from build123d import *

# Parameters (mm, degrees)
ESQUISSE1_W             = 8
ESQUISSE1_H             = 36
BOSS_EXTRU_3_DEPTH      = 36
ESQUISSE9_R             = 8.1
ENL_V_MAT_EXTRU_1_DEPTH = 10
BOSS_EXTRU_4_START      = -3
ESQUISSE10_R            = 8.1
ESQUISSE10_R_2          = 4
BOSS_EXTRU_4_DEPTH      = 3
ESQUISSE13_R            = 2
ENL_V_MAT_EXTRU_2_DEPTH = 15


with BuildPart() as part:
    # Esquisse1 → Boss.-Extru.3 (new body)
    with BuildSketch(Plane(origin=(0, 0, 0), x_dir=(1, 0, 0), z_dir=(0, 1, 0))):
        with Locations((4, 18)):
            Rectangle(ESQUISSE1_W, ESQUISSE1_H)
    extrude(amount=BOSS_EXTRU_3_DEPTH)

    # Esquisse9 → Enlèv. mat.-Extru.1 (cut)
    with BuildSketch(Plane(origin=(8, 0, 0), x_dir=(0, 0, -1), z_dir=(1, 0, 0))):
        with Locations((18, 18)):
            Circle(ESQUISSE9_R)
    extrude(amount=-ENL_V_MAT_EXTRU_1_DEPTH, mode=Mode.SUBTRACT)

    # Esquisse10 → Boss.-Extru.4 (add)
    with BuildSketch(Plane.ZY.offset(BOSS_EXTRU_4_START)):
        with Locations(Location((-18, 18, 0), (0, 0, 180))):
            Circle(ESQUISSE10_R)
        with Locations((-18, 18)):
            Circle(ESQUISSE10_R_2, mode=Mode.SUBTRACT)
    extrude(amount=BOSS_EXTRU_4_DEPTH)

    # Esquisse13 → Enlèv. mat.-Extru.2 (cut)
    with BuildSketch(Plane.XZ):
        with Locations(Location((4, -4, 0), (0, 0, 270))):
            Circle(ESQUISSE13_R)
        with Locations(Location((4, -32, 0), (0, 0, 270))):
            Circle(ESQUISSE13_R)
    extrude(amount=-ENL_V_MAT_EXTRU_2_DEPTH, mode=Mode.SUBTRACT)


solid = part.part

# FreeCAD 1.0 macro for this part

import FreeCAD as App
import Part
import Sketcher

V = App.Vector


def add_polygon(sketch, points):
    """Adds a closed chain of lines whose ends are joined by coincident constraints."""
    first, n = sketch.GeometryCount, len(points)
    for a, b in zip(points, points[1:] + points[:1]):
        sketch.addGeometry(Part.LineSegment(App.Vector(*a, 0), App.Vector(*b, 0)), False)
    for i in range(n):
        sketch.addConstraint(Sketcher.Constraint("Coincident", first + i, 2, first + (i + 1) % n, 1))

doc = App.newDocument("Part")
params = doc.addObject("Spreadsheet::Sheet", "Params")
for row, (alias, value) in enumerate([
    ("sketch1_width", "8 mm"),
    ("sketch1_height", "36 mm"),
    ("pad1_length", "36 mm"),
    ("sketch2_diameter", "16.2 mm"),
    ("pocket1_length", "10 mm"),
    ("sketch3_diameter", "8 mm"),
    ("sketch3_diameter2", "16.2 mm"),
    ("pad2_length", "3 mm"),
    ("sketch4_diameter", "4 mm"),
    ("pocket2_length", "15 mm"),
], start=1):
    params.set(f"A{row}", alias)
    params.set(f"B{row}", "=" + value)
    params.setAlias(f"B{row}", alias)

body = doc.addObject("PartDesign::Body", "Body")

# Sketch on XZ plane
sketch1 = doc.addObject("Sketcher::SketchObject", "Sketch")
body.addObject(sketch1)
sketch1.AttachmentSupport = (doc.XZ_Plane, [""])
sketch1.MapMode = "FlatFace"
add_polygon(sketch1, [(0, -36), (0, 0), (8, 0), (8, -36)])  # lines 0-3
sketch1.addConstraint([
    Sketcher.Constraint("Vertical", 0),
    Sketcher.Constraint("Horizontal", 1),
    Sketcher.Constraint("Vertical", 2),
    Sketcher.Constraint("Horizontal", 3),
    Sketcher.Constraint("Coincident", 0, 2, -1, 1),
    Sketcher.Constraint("DistanceX", 1, 1, 1, 2, 8.0),
    Sketcher.Constraint("DistanceY", 0, 1, 0, 2, 36.0),
])
sketch1.setExpression("Constraints[9]", "Params.sketch1_width")
sketch1.setExpression("Constraints[10]", "Params.sketch1_height")
pad1 = doc.addObject("PartDesign::Pad", "Pad")
body.addObject(pad1)
pad1.Profile = sketch1
pad1.setExpression("Length", "Params.pad1_length")
pad1.Reversed = True

# Sketch on YZ plane
sketch2 = doc.addObject("Sketcher::SketchObject", "Sketch001")
body.addObject(sketch2)
sketch2.AttachmentSupport = (doc.YZ_Plane, [""])
sketch2.MapMode = "FlatFace"
sketch2.AttachmentOffset = App.Placement(V(0, 0, 8), App.Rotation())
sketch2.addGeometry(Part.Circle(V(18, -18, 0), V(0, 0, 1), 8.1), False)
sketch2.addConstraint([
    Sketcher.Constraint("Diameter", 0, 16.2),
    Sketcher.Constraint("DistanceX", -1, 1, 0, 3, 18.0),
    Sketcher.Constraint("DistanceY", 0, 3, -1, 1, 18.0),
])
sketch2.setExpression("Constraints[0]", "Params.sketch2_diameter")
pocket1 = doc.addObject("PartDesign::Pocket", "Pocket")
body.addObject(pocket1)
pocket1.Profile = sketch2
pocket1.setExpression("Length", "Params.pocket1_length")

# Sketch on YZ plane
sketch3 = doc.addObject("Sketcher::SketchObject", "Sketch002")
body.addObject(sketch3)
sketch3.AttachmentSupport = (doc.YZ_Plane, [""])
sketch3.MapMode = "FlatFace"
sketch3.AttachmentOffset = App.Placement(V(0, 0, 3), App.Rotation())
sketch3.addGeometry([
    Part.Circle(V(18, -18, 0), V(0, 0, 1), 8.1),
    Part.Circle(V(18, -18, 0), V(0, 0, 1), 4),
], False)
sketch3.addConstraint([
    Sketcher.Constraint("Coincident", 1, 3, 0, 3),
    Sketcher.Constraint("Diameter", 1, 8.0),
    Sketcher.Constraint("Diameter", 0, 16.2),
    Sketcher.Constraint("DistanceX", -1, 1, 0, 3, 18.0),
    Sketcher.Constraint("DistanceY", 0, 3, -1, 1, 18.0),
])
sketch3.setExpression("Constraints[1]", "Params.sketch3_diameter")
sketch3.setExpression("Constraints[2]", "Params.sketch3_diameter2")
pad2 = doc.addObject("PartDesign::Pad", "Pad001")
body.addObject(pad2)
pad2.Profile = sketch3
pad2.setExpression("Length", "Params.pad2_length")
pad2.Reversed = True

# Sketch on XZ plane
sketch4 = doc.addObject("Sketcher::SketchObject", "Sketch003")
body.addObject(sketch4)
sketch4.AttachmentSupport = (doc.XZ_Plane, [""])
sketch4.MapMode = "FlatFace"
sketch4.addGeometry([
    Part.Circle(V(4, -4, 0), V(0, 0, 1), 2),
    Part.Circle(V(4, -32, 0), V(0, 0, 1), 2),
], False)
sketch4.addConstraint([
    Sketcher.Constraint("Equal", 0, 1),
    Sketcher.Constraint("Vertical", 0, 3, 1, 3),
    Sketcher.Constraint("Diameter", 0, 4.0),
    Sketcher.Constraint("DistanceX", -1, 1, 0, 3, 4.0),
    Sketcher.Constraint("DistanceY", 0, 3, -1, 1, 4.0),
    Sketcher.Constraint("DistanceY", 1, 3, -1, 1, 32.0),
])
sketch4.setExpression("Constraints[2]", "Params.sketch4_diameter")
pocket2 = doc.addObject("PartDesign::Pocket", "Pocket001")
body.addObject(pocket2)
pocket2.Profile = sketch4
pocket2.setExpression("Length", "Params.pocket2_length")

doc.recompute()
